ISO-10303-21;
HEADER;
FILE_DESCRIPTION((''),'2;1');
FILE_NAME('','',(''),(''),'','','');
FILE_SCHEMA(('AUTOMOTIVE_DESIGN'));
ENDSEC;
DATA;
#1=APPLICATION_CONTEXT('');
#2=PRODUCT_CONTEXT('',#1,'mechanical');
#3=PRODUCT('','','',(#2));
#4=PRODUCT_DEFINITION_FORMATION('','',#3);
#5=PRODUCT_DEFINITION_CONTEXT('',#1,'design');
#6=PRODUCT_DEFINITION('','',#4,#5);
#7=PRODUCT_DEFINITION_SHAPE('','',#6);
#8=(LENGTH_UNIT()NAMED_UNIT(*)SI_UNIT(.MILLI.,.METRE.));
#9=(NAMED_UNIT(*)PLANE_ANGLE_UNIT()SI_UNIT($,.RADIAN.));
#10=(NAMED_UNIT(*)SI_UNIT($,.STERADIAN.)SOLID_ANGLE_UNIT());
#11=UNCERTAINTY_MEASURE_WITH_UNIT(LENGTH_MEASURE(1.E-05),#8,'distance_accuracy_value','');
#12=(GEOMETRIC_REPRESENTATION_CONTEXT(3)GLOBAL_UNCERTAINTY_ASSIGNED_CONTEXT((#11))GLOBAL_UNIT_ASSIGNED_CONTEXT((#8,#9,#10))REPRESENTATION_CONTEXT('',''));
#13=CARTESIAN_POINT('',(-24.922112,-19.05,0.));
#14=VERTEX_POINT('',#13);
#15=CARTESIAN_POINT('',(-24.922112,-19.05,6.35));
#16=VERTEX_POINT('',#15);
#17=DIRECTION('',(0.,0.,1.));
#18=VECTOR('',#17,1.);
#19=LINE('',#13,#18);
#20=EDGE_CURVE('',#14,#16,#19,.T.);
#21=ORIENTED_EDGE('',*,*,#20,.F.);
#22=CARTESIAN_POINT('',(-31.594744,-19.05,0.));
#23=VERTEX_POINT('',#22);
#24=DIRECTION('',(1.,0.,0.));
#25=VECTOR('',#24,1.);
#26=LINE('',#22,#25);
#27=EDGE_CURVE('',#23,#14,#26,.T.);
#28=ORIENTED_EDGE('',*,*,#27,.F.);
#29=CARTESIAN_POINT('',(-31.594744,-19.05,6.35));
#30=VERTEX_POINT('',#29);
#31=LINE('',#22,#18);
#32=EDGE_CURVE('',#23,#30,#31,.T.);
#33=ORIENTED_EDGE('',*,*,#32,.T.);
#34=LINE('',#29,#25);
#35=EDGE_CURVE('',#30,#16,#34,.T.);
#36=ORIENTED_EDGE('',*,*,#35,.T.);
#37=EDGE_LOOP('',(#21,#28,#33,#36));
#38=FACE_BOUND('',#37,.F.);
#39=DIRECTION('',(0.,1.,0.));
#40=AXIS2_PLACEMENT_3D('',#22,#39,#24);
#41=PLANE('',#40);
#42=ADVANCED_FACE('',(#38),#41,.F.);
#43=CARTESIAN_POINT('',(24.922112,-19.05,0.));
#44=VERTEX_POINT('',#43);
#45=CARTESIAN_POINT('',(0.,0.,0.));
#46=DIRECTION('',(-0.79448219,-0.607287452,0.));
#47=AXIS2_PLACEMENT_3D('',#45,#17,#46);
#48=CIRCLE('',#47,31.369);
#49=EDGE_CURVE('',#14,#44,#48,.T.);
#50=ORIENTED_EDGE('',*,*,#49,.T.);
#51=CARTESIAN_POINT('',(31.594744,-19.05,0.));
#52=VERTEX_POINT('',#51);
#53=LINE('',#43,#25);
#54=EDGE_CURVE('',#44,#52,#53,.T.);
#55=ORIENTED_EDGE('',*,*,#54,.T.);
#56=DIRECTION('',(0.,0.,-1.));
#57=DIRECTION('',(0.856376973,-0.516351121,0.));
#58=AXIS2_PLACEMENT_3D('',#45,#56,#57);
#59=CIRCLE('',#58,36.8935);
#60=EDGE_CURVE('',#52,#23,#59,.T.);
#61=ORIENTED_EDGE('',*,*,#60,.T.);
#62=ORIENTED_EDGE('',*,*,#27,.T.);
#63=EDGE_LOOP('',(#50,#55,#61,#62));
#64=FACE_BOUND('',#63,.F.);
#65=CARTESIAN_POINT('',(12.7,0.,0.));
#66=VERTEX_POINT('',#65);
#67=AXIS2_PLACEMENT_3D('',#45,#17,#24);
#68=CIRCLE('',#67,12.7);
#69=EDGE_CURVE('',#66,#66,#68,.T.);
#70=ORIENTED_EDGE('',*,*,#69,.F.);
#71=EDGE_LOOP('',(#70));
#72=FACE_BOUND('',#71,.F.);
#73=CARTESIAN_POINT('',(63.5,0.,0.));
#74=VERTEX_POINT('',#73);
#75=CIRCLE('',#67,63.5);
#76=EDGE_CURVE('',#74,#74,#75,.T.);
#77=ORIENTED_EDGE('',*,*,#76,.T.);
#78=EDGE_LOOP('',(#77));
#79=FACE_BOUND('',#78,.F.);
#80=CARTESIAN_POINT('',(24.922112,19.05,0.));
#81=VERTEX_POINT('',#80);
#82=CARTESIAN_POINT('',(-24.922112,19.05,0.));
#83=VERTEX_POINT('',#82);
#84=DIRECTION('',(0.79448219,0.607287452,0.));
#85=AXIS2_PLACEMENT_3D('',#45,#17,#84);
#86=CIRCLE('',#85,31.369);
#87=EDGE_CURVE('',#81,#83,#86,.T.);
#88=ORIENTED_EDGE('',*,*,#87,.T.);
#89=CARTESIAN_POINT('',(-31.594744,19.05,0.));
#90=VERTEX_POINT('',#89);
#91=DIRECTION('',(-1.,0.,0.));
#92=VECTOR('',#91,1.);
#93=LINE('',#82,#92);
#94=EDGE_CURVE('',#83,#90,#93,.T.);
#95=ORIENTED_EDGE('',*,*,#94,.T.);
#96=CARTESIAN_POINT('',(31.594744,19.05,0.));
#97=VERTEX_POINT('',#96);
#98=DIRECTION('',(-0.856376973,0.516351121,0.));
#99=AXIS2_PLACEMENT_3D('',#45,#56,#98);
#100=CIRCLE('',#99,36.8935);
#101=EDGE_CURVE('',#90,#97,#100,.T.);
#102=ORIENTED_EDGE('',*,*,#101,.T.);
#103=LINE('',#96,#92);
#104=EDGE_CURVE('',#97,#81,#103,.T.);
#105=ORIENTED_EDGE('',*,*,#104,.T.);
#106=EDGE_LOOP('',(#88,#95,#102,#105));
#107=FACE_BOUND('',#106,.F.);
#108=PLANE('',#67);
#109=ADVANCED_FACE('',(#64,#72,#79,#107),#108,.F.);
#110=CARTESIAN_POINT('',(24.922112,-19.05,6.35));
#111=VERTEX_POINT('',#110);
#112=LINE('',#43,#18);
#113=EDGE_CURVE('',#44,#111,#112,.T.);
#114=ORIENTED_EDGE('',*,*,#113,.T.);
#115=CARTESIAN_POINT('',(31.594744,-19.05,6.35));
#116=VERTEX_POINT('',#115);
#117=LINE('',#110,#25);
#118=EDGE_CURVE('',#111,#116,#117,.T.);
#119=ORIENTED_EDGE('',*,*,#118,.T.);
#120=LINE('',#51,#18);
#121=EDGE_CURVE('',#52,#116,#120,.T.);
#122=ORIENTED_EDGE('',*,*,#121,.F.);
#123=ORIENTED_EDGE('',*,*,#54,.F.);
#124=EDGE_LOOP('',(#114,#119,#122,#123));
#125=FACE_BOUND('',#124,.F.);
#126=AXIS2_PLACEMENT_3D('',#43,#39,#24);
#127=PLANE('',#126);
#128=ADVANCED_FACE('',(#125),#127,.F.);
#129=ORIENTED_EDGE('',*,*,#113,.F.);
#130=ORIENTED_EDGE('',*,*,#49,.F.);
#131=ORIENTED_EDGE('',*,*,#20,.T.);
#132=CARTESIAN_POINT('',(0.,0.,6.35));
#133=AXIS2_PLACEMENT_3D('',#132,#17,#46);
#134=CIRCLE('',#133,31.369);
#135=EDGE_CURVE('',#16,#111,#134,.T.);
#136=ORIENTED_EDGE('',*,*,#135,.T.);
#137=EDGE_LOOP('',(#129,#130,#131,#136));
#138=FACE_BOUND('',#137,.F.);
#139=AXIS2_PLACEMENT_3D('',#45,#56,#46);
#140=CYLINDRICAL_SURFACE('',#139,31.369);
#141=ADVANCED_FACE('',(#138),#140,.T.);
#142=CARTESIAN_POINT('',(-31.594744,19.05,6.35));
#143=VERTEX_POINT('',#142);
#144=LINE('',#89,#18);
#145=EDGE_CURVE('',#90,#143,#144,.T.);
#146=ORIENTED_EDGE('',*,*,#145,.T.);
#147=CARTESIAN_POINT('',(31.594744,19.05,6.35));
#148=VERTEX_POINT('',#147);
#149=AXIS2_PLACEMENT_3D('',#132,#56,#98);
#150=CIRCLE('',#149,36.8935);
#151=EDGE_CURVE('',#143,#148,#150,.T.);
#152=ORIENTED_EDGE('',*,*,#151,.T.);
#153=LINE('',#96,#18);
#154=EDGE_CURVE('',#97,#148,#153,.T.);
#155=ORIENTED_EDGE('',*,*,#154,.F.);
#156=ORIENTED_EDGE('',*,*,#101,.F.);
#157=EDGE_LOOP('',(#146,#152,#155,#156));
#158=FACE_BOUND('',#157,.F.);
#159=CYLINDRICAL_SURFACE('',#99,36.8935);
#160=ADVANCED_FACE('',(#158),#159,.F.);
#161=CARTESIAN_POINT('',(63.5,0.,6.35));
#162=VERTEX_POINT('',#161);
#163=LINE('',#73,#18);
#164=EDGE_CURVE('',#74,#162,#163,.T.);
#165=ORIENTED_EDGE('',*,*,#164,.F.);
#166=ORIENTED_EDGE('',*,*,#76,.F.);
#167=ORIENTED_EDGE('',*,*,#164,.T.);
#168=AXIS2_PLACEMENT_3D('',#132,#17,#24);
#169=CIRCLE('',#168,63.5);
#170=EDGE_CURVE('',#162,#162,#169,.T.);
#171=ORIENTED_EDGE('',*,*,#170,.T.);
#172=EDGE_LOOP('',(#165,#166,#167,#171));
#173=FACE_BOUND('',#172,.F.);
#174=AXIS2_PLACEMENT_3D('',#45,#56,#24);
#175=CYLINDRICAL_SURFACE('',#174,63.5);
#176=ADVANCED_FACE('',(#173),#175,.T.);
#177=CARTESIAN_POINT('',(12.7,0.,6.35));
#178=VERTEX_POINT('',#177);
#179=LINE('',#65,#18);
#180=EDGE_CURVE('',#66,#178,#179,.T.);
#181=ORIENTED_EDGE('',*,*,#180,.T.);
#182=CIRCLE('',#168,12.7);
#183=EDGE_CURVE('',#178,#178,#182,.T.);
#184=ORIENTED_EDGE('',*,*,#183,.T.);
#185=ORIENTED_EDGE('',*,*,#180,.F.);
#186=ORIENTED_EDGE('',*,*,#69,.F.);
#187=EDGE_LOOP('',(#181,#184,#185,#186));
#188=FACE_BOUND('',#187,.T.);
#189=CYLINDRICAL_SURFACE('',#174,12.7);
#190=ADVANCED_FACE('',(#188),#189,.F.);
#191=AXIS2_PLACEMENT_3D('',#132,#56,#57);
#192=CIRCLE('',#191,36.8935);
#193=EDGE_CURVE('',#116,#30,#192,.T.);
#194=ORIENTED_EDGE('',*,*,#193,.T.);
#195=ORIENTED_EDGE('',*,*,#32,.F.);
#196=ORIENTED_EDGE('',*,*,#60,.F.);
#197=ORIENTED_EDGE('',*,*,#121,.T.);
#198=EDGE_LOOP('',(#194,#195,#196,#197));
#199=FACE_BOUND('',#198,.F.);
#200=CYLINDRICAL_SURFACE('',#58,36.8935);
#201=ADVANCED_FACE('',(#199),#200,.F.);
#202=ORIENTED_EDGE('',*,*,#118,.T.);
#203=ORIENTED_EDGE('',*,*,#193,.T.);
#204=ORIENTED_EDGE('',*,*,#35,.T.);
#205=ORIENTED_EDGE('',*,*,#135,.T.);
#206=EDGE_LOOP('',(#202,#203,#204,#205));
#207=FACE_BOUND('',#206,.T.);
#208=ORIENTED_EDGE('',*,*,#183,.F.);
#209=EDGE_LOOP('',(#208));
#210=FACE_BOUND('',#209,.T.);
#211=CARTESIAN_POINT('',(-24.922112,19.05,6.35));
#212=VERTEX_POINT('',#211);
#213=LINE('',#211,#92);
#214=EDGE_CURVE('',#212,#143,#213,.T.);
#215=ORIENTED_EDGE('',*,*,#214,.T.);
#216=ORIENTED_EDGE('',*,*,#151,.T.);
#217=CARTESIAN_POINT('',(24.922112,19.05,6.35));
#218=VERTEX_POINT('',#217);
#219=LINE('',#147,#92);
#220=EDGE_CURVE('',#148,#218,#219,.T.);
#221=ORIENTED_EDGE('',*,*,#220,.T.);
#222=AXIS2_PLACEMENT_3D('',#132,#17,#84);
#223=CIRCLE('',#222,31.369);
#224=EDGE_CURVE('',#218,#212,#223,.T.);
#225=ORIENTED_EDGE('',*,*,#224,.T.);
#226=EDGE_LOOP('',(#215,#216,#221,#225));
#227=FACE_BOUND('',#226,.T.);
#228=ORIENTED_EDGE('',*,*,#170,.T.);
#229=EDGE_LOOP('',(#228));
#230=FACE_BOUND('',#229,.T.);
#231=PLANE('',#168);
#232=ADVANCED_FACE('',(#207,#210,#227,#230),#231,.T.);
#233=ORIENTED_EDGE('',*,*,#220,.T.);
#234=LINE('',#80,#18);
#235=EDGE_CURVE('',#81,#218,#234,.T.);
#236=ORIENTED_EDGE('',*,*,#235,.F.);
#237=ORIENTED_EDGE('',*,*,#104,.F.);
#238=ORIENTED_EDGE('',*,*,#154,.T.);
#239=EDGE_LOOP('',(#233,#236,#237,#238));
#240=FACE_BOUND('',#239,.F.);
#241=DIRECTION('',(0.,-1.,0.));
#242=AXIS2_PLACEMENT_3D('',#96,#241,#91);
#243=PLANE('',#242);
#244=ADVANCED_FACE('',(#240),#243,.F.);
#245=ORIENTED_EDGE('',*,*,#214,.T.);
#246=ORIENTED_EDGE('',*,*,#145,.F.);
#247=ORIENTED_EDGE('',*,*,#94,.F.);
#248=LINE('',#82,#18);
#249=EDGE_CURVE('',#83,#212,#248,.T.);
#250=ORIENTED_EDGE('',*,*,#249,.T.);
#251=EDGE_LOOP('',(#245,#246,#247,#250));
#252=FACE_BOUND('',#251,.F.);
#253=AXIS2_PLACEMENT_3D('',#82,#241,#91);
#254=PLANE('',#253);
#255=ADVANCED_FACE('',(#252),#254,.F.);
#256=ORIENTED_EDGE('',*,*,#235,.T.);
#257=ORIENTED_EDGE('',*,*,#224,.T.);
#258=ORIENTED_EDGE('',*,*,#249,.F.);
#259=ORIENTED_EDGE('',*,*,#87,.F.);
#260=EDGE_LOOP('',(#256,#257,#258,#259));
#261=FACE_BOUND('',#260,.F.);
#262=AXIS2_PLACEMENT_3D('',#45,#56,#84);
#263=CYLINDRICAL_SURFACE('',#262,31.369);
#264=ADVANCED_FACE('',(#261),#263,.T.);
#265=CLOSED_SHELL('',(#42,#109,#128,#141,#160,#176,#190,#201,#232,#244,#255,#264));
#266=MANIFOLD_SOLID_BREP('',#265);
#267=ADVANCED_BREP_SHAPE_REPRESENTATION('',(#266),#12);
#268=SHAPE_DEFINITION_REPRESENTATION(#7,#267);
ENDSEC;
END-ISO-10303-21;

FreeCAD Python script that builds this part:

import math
import FreeCAD as App
import Part
import Sketcher
Q = App.Units.Quantity

doc = App.newDocument("Part")
body = doc.addObject("PartDesign::Body", "Body")

sketch1 = body.newObject("Sketcher::SketchObject", "Sketch")
sketch1.AttachmentSupport = (doc.getObject("XY_Plane"), [""])
sketch1.MapMode = "FlatFace"
sketch1.addGeometry([
    Part.Circle(App.Vector(0, 0, 0), App.Vector(0, 0, 1), 64),
    Part.LineSegment(App.Vector(-32, -19, 0), App.Vector(-25, -19, 0)),
    Part.ArcOfCircle(Part.Circle(App.Vector(0, 0, 0), App.Vector(0, 0, 1), 31), math.radians(-143), math.radians(-37)),
    Part.LineSegment(App.Vector(25, -19, 0), App.Vector(32, -19, 0)),
    Part.ArcOfCircle(Part.Circle(App.Vector(0, 0, 0), App.Vector(0, 0, 1), 37), math.radians(-149), math.radians(-31)),
    Part.Circle(App.Vector(0, 0, 0), App.Vector(0, 0, 1), 13),
    Part.LineSegment(App.Vector(-25, 19, 0), App.Vector(-32, 19, 0)),
    Part.ArcOfCircle(Part.Circle(App.Vector(0, 0, 0), App.Vector(0, 0, 1), 37), math.radians(31), math.radians(149)),
    Part.LineSegment(App.Vector(32, 19, 0), App.Vector(25, 19, 0)),
    Part.ArcOfCircle(Part.Circle(App.Vector(0, 0, 0), App.Vector(0, 0, 1), 31), math.radians(37), math.radians(143)),
], False)
sketch1.addConstraint([
    Sketcher.Constraint("Coincident", 1, 2, 2, 1),
    Sketcher.Constraint("Coincident", 2, 2, 3, 1),
    Sketcher.Constraint("Coincident", 3, 2, 4, 2),
    Sketcher.Constraint("Coincident", 4, 1, 1, 1),
    Sketcher.Constraint("Coincident", 6, 2, 7, 2),
    Sketcher.Constraint("Coincident", 7, 1, 8, 1),
    Sketcher.Constraint("Coincident", 8, 2, 9, 1),
    Sketcher.Constraint("Coincident", 9, 2, 6, 1),
    Sketcher.Constraint("Horizontal", 1),
    Sketcher.Constraint("Horizontal", 3),
    Sketcher.Constraint("Horizontal", 6),
    Sketcher.Constraint("Horizontal", 8),
    Sketcher.Constraint("Coincident", 0, 3, -1, 1),
    Sketcher.Constraint("Coincident", 2, 3, -1, 1),
    Sketcher.Constraint("Coincident", 4, 3, -1, 1),
    Sketcher.Constraint("Coincident", 5, 3, -1, 1),
    Sketcher.Constraint("Coincident", 7, 3, -1, 1),
    Sketcher.Constraint("Coincident", 9, 3, -1, 1),
    Sketcher.Constraint("Equal", 4, 7),
    Sketcher.Constraint("Equal", 2, 9),
    Sketcher.Constraint("Horizontal", 1, 2, 2, 2),
    Sketcher.Constraint("Horizontal", 6, 2, 7, 1),
    Sketcher.Constraint("Vertical", 4, 1, 6, 2),
    Sketcher.Constraint("Diameter", 0, Q("5 in")),
    Sketcher.Constraint("Diameter", 5, Q("1 in")),
    Sketcher.Constraint("Radius", 2, Q("1.235 in")),
    Sketcher.Constraint("Radius", 4, Q("1.4525 in")),
    Sketcher.Constraint("DistanceY", 1, 2, -1, 1, Q("0.75 in")),
])
pad1 = body.newObject("PartDesign::Pad", "Pad")
pad1.Profile = sketch1
pad1.Length = Q("0.25 in")

doc.recompute()
